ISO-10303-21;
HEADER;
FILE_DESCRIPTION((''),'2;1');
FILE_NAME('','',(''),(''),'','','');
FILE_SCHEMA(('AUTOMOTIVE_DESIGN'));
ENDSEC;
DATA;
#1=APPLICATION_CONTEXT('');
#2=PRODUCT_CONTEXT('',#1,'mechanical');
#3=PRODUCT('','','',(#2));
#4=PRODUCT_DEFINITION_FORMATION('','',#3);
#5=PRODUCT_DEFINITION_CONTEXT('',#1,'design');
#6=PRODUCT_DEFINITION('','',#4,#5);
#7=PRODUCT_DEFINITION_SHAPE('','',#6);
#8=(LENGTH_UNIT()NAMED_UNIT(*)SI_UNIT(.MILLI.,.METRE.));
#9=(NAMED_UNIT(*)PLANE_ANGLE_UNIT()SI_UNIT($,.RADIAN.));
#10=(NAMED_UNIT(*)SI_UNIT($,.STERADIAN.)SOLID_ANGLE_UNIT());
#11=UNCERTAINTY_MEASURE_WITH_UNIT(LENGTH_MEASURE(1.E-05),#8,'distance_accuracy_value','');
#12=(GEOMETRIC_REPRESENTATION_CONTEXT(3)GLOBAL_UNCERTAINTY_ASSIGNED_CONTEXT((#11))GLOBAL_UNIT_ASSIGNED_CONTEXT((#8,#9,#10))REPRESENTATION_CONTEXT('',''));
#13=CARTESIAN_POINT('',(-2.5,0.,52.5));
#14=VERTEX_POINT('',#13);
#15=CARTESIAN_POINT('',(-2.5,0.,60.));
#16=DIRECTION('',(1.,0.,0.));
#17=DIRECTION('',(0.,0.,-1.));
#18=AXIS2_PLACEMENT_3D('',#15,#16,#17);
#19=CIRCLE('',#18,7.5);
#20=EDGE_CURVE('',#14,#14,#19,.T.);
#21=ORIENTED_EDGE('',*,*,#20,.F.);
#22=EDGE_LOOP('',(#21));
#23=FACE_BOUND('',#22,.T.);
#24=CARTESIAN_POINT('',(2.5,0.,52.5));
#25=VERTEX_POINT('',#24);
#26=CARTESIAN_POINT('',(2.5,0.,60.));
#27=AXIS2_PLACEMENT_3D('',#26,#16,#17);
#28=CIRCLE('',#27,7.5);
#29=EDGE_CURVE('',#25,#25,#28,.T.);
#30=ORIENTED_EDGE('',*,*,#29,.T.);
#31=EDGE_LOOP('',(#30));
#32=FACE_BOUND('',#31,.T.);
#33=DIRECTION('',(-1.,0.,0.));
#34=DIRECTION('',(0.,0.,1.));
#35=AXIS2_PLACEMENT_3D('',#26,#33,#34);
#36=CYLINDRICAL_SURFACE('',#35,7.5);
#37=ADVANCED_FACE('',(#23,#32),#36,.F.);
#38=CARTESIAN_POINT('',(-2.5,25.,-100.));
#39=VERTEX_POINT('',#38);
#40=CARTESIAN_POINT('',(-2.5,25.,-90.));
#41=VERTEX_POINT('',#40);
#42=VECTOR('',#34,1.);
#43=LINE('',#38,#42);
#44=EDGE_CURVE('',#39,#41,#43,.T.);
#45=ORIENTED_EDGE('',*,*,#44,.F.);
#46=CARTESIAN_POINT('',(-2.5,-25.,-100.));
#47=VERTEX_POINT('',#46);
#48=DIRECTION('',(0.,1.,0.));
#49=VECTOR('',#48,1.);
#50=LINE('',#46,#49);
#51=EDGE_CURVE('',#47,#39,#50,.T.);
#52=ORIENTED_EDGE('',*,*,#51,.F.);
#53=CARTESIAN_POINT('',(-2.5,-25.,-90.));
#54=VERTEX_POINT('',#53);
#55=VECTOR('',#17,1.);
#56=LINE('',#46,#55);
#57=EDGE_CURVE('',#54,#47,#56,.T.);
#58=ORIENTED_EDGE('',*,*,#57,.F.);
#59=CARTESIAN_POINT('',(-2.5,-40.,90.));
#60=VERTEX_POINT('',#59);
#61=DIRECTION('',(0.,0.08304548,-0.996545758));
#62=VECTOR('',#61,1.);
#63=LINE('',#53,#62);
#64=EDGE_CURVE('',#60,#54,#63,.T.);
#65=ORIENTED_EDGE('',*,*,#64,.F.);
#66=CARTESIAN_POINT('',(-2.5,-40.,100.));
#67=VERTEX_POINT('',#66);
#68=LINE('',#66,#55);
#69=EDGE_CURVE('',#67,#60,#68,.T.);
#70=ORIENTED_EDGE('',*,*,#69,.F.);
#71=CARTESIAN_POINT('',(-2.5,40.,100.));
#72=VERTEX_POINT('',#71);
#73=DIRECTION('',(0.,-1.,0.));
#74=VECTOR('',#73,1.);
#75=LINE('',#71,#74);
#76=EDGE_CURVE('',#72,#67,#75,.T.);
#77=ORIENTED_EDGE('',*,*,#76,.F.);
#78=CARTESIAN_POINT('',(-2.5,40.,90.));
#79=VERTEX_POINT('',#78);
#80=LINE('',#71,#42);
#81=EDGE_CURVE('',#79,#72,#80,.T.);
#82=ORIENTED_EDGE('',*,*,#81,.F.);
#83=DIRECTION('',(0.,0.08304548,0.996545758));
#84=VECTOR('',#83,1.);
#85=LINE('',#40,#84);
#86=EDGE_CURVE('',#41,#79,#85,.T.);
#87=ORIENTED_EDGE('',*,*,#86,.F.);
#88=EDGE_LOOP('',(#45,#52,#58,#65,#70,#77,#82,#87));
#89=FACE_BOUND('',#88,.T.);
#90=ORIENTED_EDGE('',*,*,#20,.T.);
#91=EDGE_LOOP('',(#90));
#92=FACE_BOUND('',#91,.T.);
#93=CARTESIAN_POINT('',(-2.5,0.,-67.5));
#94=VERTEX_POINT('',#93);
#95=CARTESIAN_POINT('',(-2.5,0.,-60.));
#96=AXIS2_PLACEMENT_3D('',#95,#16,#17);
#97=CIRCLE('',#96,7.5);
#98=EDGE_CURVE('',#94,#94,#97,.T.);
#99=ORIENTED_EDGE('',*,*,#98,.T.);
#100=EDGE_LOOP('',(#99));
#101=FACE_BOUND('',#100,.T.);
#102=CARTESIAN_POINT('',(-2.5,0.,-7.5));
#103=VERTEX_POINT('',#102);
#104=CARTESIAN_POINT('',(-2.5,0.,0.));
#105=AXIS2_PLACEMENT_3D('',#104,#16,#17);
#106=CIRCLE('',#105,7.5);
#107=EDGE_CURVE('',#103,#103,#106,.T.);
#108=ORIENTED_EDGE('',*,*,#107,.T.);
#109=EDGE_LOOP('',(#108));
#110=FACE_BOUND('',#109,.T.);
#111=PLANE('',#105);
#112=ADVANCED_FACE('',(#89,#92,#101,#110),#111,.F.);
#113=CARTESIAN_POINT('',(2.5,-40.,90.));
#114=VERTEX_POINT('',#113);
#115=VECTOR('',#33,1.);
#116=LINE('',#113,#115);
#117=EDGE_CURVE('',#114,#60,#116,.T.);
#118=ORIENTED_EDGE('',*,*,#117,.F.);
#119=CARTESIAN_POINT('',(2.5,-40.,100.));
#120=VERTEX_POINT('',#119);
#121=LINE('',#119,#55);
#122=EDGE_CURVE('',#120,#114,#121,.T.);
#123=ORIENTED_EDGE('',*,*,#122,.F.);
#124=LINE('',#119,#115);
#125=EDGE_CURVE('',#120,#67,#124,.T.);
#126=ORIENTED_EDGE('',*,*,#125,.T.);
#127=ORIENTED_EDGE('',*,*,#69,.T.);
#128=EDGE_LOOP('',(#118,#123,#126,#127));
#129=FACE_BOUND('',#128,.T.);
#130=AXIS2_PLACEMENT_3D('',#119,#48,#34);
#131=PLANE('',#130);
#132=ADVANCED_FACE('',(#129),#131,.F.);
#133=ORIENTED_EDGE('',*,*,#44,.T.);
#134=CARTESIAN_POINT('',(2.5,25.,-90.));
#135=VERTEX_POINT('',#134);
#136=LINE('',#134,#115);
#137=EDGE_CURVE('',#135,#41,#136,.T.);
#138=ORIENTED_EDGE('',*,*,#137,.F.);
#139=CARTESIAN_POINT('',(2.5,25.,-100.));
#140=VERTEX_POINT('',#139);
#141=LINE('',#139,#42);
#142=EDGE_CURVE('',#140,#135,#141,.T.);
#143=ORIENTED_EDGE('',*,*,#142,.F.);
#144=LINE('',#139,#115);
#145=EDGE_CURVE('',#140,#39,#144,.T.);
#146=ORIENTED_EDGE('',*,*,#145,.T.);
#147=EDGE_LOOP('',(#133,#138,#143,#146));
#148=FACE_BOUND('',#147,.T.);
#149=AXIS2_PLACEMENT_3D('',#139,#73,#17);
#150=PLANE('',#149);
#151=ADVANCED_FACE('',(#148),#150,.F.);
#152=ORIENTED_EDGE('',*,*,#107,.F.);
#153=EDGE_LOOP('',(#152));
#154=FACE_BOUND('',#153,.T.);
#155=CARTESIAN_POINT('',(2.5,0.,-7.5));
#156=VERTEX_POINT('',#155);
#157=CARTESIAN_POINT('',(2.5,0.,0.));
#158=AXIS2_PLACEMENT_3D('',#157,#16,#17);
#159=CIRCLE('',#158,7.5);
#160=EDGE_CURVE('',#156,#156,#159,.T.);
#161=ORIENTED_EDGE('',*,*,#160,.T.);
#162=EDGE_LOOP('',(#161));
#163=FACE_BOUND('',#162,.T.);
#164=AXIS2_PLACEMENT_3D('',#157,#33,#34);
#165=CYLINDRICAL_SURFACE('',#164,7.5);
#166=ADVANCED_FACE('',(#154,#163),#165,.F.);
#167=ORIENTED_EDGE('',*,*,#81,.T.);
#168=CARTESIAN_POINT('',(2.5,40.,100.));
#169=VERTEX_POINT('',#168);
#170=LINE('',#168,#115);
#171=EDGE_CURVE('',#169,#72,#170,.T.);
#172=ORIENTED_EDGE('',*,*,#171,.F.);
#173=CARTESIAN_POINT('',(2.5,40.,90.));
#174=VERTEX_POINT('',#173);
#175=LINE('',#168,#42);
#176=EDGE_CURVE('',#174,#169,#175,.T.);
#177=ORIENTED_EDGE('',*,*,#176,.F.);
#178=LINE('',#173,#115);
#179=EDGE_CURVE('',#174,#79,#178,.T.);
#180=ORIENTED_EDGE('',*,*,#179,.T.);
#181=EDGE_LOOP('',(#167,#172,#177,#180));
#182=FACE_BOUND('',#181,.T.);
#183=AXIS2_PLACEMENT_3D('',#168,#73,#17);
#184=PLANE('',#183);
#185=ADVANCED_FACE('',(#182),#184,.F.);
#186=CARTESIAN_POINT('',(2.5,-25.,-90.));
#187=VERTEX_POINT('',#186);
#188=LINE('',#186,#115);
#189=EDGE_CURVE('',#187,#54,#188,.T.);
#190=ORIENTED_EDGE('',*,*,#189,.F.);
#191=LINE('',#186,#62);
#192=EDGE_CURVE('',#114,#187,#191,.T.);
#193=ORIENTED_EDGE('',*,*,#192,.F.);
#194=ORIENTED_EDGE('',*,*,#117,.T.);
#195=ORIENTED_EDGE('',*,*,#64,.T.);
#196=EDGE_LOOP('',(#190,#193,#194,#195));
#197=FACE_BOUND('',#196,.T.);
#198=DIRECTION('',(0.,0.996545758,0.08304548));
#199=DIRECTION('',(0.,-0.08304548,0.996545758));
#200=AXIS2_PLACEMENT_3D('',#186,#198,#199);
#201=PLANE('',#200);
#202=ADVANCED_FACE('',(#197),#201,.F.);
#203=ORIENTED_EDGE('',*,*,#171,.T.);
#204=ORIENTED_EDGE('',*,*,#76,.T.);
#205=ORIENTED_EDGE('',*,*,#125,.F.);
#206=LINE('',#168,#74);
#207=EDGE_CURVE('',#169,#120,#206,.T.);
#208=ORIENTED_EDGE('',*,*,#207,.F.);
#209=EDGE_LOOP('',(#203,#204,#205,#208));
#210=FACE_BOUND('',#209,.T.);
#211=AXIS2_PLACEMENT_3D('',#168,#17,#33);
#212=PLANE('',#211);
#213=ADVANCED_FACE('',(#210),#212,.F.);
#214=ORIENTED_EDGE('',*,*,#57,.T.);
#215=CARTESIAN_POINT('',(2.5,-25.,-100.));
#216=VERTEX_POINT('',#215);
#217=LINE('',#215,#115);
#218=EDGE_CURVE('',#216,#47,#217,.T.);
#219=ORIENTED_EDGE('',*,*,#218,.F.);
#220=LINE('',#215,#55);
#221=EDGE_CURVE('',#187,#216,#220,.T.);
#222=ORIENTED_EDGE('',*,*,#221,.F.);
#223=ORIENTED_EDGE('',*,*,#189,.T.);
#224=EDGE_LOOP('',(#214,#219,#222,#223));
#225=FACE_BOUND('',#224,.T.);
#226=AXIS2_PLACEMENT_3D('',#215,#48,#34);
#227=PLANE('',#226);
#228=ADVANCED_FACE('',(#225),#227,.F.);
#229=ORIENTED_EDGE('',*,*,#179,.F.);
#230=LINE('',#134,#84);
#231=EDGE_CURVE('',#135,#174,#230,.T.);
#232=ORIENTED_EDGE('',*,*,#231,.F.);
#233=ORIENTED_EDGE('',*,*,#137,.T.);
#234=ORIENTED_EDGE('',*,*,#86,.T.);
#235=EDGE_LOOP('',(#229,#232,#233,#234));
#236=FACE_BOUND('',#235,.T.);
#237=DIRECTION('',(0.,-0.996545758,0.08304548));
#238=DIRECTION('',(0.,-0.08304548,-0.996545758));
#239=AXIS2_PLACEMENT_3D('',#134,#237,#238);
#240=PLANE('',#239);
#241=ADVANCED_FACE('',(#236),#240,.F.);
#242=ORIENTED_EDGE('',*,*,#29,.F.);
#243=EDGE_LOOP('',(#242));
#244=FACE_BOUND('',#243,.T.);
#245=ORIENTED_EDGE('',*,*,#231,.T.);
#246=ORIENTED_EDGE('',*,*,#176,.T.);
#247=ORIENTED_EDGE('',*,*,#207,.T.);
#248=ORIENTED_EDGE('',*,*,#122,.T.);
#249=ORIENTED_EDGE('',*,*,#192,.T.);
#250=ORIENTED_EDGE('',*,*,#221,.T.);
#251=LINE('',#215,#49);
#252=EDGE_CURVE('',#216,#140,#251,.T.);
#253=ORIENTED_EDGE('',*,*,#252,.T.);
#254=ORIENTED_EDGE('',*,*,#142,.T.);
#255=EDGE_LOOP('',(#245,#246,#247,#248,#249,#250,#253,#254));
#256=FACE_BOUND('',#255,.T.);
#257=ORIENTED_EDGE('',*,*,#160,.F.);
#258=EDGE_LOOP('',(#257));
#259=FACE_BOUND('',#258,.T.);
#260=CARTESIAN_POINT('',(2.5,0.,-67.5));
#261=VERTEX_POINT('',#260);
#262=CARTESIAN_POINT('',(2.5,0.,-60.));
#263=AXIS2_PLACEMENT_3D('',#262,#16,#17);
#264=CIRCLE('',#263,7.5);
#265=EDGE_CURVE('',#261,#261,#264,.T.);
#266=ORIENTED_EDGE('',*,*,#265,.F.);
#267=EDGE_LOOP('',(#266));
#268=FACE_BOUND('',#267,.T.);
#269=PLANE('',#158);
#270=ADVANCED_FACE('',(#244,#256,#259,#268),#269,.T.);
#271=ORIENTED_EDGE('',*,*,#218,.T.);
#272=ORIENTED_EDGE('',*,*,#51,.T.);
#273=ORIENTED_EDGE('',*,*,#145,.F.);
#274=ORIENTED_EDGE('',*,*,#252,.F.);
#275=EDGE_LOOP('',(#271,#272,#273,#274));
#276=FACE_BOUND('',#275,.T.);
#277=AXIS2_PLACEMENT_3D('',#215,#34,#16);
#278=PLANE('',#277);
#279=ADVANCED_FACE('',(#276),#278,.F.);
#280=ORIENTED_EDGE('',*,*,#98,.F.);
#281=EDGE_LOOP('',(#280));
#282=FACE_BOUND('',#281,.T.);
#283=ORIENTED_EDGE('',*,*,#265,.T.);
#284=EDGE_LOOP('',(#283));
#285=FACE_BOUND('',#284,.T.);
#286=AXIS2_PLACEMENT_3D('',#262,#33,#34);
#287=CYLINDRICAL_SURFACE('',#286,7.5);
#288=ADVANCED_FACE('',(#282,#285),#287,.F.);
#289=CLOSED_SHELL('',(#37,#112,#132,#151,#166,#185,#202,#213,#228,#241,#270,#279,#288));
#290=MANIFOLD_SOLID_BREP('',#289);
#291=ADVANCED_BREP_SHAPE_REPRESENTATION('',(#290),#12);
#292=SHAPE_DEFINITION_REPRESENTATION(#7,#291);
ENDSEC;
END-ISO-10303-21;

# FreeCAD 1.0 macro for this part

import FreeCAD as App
import Part
import Sketcher
from FreeCAD import Vector
Q = App.Units.Quantity


def add_polygon(sketch, points):
    """Adds a closed chain of lines whose ends are joined by coincident constraints."""
    first, n = sketch.GeometryCount, len(points)
    for a, b in zip(points, points[1:] + points[:1]):
        sketch.addGeometry(Part.LineSegment(App.Vector(*a, 0), App.Vector(*b, 0)), False)
    for i in range(n):
        sketch.addConstraint(Sketcher.Constraint("Coincident", first + i, 2, first + (i + 1) % n, 1))

doc = App.newDocument("Part")
body = doc.addObject("PartDesign::Body", "Body")

sketch1 = body.newObject("Sketcher::SketchObject", "Sketch")
sketch1.AttachmentSupport = (doc.getObject("YZ_Plane"), [""])
sketch1.MapMode = "FlatFace"
add_polygon(sketch1, [(-25, -100), (25, -100), (25, -90), (40, 90), (40, 100), (-40, 100), (-40, 90), (-25, -90)])
sketch1.addGeometry(Part.Circle(Vector(0, 60, 0), Vector(0, 0, 1), 8), False)
sketch1.addGeometry(Part.Circle(Vector(0, 0, 0), Vector(0, 0, 1), 8), False)
sketch1.addGeometry(Part.Circle(Vector(0, -60, 0), Vector(0, 0, 1), 8), False)
sketch1.addConstraint([
    Sketcher.Constraint("Horizontal", 0),
    Sketcher.Constraint("Vertical", 1),
    Sketcher.Constraint("Vertical", 3),
    Sketcher.Constraint("Horizontal", 4),
    Sketcher.Constraint("Vertical", 5),
    Sketcher.Constraint("Vertical", 7),
    Sketcher.Constraint("Coincident", 9, 3, -1, 1),
    Sketcher.Constraint("Equal", 8, 9),
    Sketcher.Constraint("Equal", 9, 10),
    Sketcher.Constraint("Symmetric", 8, 3, 10, 3, -1, 1),
    Sketcher.Constraint("Symmetric", 2, 2, 5, 2, -2),
    Sketcher.Constraint("Symmetric", 1, 2, 6, 2, -2),
    Sketcher.Constraint("PointOnObject", 8, 3, -2),
    Sketcher.Constraint("Equal", 1, 3),
    Sketcher.Constraint("Diameter", 8, Q("15 mm")),
    Sketcher.Constraint("DistanceX", 0, 1, 0, 2, Q("50 mm")),
    Sketcher.Constraint("DistanceX", 4, 2, 4, 1, Q("80 mm")),
    Sketcher.Constraint("DistanceY", 1, 1, 1, 2, Q("10 mm")),
    Sketcher.Constraint("DistanceY", -1, 1, 8, 3, Q("60 mm")),
    Sketcher.Constraint("DistanceY", 0, 2, -1, 1, Q("100 mm")),
    Sketcher.Constraint("DistanceY", -1, 1, 2, 2, Q("90 mm")),
])
pad1 = body.newObject("PartDesign::Pad", "Pad")
pad1.Profile = sketch1
pad1.Length = 5
pad1.Midplane = True

doc.recompute()
